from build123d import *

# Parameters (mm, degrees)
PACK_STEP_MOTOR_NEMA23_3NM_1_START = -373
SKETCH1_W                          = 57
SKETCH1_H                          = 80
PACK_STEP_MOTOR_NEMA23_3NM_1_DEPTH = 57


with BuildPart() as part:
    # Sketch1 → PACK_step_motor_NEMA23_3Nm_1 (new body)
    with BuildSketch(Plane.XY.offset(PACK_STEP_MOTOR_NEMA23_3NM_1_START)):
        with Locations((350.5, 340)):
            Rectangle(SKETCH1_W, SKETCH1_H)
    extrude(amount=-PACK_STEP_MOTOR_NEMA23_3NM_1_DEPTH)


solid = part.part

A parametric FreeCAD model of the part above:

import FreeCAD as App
import Part
import Sketcher


def add_polygon(sketch, points):
    """Adds a closed chain of lines whose ends are joined by coincident constraints."""
    first, n = sketch.GeometryCount, len(points)
    for a, b in zip(points, points[1:] + points[:1]):
        sketch.addGeometry(Part.LineSegment(App.Vector(*a, 0), App.Vector(*b, 0)), False)
    for i in range(n):
        sketch.addConstraint(Sketcher.Constraint("Coincident", first + i, 2, first + (i + 1) % n, 1))

doc = App.newDocument("Part")
params = doc.addObject("Spreadsheet::Sheet", "Params")
for row, (alias, value) in enumerate([
    ("sketch1_width", "57 mm"),
    ("sketch1_height", "80 mm"),
    ("pad1_length", "57 mm"),
], start=1):
    params.set(f"A{row}", alias)
    params.set(f"B{row}", "=" + value)
    params.setAlias(f"B{row}", alias)

body = doc.addObject("PartDesign::Body", "Body")

# Sketch on XY plane
sketch1 = body.newObject("Sketcher::SketchObject", "Sketch")
sketch1.AttachmentSupport = (doc.getObject("XY_Plane"), [""])
sketch1.MapMode = "FlatFace"
sketch1.AttachmentOffset = App.Placement(App.Vector(0, 0, -373), App.Rotation())
add_polygon(sketch1, [(322, 380), (322, 300), (379, 300), (379, 380)])  # lines 0-3
sketch1.addConstraint(Sketcher.Constraint("Vertical", 0))
sketch1.addConstraint(Sketcher.Constraint("Horizontal", 1))
sketch1.addConstraint(Sketcher.Constraint("Vertical", 2))
sketch1.addConstraint(Sketcher.Constraint("Horizontal", 3))
sketch1.addConstraint(Sketcher.Constraint("DistanceX", 1, 1, 1, 2, 57.0))
sketch1.addConstraint(Sketcher.Constraint("DistanceY", 0, 2, 0, 1, 80.0))
sketch1.addConstraint(Sketcher.Constraint("DistanceX", -1, 1, 0, 2, 322.0))
sketch1.addConstraint(Sketcher.Constraint("DistanceY", -1, 1, 0, 2, 300.0))
sketch1.setExpression("Constraints[8]", "Params.sketch1_width")
sketch1.setExpression("Constraints[9]", "Params.sketch1_height")
pad1 = body.newObject("PartDesign::Pad", "Pad")
pad1.Profile = sketch1
pad1.setExpression("Length", "Params.pad1_length")
pad1.Reversed = True

doc.recompute()
